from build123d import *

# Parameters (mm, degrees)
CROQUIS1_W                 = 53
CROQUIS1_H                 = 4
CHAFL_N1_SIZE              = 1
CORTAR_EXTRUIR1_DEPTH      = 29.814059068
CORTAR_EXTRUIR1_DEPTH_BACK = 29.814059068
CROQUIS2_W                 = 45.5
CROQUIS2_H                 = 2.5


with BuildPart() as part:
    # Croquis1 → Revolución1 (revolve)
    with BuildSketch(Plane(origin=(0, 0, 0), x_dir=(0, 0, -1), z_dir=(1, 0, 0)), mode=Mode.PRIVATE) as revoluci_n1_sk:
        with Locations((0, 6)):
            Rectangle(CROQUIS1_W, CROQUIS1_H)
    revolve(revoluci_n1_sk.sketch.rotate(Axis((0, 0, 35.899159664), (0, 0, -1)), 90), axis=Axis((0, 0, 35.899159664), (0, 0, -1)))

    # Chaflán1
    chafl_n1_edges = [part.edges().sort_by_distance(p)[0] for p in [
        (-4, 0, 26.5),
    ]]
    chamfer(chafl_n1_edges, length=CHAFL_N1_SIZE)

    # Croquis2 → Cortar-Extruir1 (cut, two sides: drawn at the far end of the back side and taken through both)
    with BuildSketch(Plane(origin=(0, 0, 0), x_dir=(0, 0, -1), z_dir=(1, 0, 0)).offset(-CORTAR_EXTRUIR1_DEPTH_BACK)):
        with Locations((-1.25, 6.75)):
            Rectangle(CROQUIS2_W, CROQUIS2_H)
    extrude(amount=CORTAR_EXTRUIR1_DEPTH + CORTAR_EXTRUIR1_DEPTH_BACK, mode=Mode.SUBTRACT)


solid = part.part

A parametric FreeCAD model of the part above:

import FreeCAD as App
import Part
import Sketcher
from FreeCAD import Vector


def edges_at(feature, points):
    """Names of the edges that pass closest to the given points."""
    edges = feature.Shape.Edges
    near = lambda p: min(range(len(edges)), key=lambda i: edges[i].distToShape(Part.Vertex(*p))[0])
    return sorted({f"Edge{near(p) + 1}" for p in points})


def add_polygon(sketch, points):
    """Adds a closed chain of lines whose ends are joined by coincident constraints."""
    first, n = sketch.GeometryCount, len(points)
    for a, b in zip(points, points[1:] + points[:1]):
        sketch.addGeometry(Part.LineSegment(App.Vector(*a, 0), App.Vector(*b, 0)), False)
    for i in range(n):
        sketch.addConstraint(Sketcher.Constraint("Coincident", first + i, 2, first + (i + 1) % n, 1))

doc = App.newDocument("Part")
body = doc.addObject("PartDesign::Body", "Body")

# Sketch on YZ plane
sketch1 = body.newObject("Sketcher::SketchObject", "Sketch")
sketch1.AttachmentSupport = (doc.getObject("YZ_Plane"), [""])
sketch1.MapMode = "FlatFace"
add_polygon(sketch1, [(8, 26.5), (4, 26.5), (4, -26.5), (8, -26.5)])  # lines 0-3
sketch1.addConstraint([
    Sketcher.Constraint("Horizontal", 0),
    Sketcher.Constraint("Vertical", 1),
    Sketcher.Constraint("Horizontal", 2),
    Sketcher.Constraint("Vertical", 3),
    Sketcher.Constraint("DistanceX", 0, 2, 0, 1, 4.0),
    Sketcher.Constraint("DistanceY", 1, 2, 1, 1, 53.0),
    Sketcher.Constraint("DistanceX", -1, 1, 0, 2, 4.0),
    Sketcher.Constraint("DistanceY", -1, 1, 0, 2, 26.5),
])
revolution = body.newObject("PartDesign::Revolution", "Revolution")
revolution.Profile = sketch1
revolution.ReferenceAxis = (sketch1, ["V_Axis"])
revolution.Angle = 360
doc.recompute()

chamfer = body.newObject("PartDesign::Chamfer", "Chamfer")
chamfer.Base = (revolution, edges_at(revolution, [(-4, 0, 26.5)]))
chamfer.Size = 1

# Sketch on YZ plane
sketch2 = body.newObject("Sketcher::SketchObject", "Sketch001")
sketch2.AttachmentSupport = (doc.getObject("YZ_Plane"), [""])
sketch2.MapMode = "FlatFace"
add_polygon(sketch2, [(8, 24), (5.5, 24), (5.5, -21.5), (8, -21.5)])  # lines 0-3
sketch2.addConstraint([
    Sketcher.Constraint("Horizontal", 0),
    Sketcher.Constraint("Vertical", 1),
    Sketcher.Constraint("Horizontal", 2),
    Sketcher.Constraint("Vertical", 3),
    Sketcher.Constraint("DistanceX", 0, 2, 0, 1, 2.5),
    Sketcher.Constraint("DistanceY", 1, 2, 1, 1, 45.5),
    Sketcher.Constraint("DistanceY", -1, 1, 0, 2, 24.0),
    Sketcher.Constraint("DistanceX", -1, 1, 2, 2, 8.0),
])
pocket1 = body.newObject("PartDesign::Pocket", "Pocket")
pocket1.Profile = sketch2
pocket1.Type = "ThroughAll"
pocket1.Midplane = True

doc.recompute()
